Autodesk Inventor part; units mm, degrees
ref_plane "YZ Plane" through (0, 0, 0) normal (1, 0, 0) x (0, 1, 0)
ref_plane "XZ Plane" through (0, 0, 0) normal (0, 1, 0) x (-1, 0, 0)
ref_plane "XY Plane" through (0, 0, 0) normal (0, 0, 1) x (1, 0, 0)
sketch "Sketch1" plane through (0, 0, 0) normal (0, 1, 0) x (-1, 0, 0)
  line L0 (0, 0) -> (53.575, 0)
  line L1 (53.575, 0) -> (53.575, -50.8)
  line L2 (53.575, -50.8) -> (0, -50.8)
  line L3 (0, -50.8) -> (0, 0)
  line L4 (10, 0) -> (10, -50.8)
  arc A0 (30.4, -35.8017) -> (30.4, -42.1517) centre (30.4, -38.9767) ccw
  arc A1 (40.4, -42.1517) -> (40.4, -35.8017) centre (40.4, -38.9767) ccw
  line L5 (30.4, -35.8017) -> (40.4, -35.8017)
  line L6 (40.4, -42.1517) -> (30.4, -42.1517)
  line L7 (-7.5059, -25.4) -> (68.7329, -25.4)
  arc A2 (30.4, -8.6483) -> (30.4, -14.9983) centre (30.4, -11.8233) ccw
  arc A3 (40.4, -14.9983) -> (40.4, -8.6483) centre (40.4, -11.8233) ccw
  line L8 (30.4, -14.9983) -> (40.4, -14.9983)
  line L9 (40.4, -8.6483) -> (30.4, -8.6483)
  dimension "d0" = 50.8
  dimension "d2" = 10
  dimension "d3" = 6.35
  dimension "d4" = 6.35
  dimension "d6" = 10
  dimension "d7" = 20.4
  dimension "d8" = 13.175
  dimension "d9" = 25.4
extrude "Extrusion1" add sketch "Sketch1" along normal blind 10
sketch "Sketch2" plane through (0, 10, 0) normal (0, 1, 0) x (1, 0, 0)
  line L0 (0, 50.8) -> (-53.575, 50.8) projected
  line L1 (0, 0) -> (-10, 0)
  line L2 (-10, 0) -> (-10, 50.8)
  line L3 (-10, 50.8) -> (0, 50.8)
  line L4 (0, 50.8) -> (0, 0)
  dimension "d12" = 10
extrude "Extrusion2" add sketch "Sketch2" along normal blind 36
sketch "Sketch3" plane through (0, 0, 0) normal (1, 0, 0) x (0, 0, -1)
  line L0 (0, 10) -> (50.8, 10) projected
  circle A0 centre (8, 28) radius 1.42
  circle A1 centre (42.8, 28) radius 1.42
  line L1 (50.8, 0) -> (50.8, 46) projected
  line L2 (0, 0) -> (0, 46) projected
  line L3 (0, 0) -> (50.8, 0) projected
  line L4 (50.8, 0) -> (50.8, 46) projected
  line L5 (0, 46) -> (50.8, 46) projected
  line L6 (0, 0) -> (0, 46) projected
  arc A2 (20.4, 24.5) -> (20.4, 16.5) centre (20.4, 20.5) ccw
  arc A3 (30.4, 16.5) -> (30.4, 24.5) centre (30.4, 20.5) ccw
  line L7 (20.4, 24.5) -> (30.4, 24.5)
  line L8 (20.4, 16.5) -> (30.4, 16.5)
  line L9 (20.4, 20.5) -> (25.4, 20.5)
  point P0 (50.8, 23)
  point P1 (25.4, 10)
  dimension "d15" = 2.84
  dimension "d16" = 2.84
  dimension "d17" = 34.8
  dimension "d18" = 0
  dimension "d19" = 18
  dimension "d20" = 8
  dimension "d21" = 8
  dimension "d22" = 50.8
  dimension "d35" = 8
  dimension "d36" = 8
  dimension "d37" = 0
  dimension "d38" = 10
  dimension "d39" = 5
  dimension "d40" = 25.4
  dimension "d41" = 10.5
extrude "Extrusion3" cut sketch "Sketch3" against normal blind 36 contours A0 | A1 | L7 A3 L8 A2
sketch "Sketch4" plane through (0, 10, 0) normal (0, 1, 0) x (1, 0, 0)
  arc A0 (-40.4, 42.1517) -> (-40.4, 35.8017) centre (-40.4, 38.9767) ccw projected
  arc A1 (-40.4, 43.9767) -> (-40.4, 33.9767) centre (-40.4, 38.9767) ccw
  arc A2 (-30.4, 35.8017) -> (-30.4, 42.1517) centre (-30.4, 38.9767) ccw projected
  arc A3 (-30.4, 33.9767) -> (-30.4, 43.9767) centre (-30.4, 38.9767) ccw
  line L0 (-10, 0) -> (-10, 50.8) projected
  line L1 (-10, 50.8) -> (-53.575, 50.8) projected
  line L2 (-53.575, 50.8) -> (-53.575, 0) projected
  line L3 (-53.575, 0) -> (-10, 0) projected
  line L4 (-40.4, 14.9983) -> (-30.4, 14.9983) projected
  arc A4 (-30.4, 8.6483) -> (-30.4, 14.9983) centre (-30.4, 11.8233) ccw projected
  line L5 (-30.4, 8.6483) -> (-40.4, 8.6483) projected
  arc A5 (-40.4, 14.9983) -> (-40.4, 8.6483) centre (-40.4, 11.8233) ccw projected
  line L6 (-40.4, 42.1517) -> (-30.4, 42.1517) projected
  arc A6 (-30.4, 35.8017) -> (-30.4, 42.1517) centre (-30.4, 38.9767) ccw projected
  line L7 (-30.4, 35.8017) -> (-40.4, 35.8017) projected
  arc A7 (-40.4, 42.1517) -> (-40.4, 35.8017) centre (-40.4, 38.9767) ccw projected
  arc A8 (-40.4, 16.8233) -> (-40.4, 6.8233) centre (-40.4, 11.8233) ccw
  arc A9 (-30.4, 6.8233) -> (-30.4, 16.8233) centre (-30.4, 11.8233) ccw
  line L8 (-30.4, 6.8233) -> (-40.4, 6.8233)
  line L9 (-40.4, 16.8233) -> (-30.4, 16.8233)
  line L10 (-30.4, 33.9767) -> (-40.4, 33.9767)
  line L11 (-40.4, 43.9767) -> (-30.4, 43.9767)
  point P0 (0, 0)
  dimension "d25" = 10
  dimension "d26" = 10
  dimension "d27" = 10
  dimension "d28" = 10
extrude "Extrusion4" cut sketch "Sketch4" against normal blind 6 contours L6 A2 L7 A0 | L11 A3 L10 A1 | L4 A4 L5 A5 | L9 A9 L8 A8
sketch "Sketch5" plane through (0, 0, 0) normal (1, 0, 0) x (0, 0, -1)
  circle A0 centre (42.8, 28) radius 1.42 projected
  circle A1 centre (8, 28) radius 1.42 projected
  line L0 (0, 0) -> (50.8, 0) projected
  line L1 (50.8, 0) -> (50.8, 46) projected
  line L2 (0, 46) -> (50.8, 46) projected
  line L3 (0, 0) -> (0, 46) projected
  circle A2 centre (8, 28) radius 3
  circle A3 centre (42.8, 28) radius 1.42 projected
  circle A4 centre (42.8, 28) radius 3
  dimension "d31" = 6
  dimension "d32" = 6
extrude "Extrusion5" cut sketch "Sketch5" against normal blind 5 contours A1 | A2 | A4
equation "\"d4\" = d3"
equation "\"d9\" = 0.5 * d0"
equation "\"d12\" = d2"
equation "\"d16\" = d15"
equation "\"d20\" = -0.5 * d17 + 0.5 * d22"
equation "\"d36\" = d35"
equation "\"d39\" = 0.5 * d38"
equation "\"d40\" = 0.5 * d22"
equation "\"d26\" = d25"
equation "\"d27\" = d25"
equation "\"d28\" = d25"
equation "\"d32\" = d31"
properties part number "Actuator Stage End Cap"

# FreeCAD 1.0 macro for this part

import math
import FreeCAD as App
import Part
import Sketcher
from FreeCAD import Vector

doc = App.newDocument("Part")
params = doc.addObject("Spreadsheet::Sheet", "Params")
for row, (alias, value) in enumerate([
    ("sketch1_width", "10 mm"),
    ("sketch1_height", "50.8 mm"),
    ("pad1_length", "10 mm"),
    ("sketch2_width", "10 mm"),
    ("sketch2_height", "50.8 mm"),
    ("pad2_length", "36 mm"),
    ("sketch3_radius", "4 mm"),
    ("sketch3_diameter", "2.84 mm"),
    ("sketch3_height", "10 mm"),
    ("pocket1_length", "36 mm"),
    ("sketch4_radius", "5 mm"),
    ("sketch4_width", "10 mm"),
    ("pocket2_length", "6 mm"),
    ("sketch5_diameter", "6 mm"),
    ("sketch5_diameter2", "2.84 mm"),
    ("pocket3_length", "5 mm"),
], start=1):
    params.set(f"A{row}", alias)
    params.set(f"B{row}", "=" + value)
    params.setAlias(f"B{row}", alias)

body = doc.addObject("PartDesign::Body", "Body")

# Sketch on XZ plane
sketch1 = body.newObject("Sketcher::SketchObject", "Sketch")
sketch1.AttachmentSupport = (doc.getObject("XZ_Plane"), [""])
sketch1.MapMode = "FlatFace"
sketch1.addGeometry(Part.LineSegment(Vector(0, 0, 0), Vector(0, -50.8, 0)), False)
sketch1.addGeometry(Part.LineSegment(Vector(0, -50.8, 0), Vector(-53.6, -50.8, 0)), False)
sketch1.addGeometry(Part.LineSegment(Vector(-53.6, -50.8, 0), Vector(-53.6, 0, 0)), False)
sketch1.addGeometry(Part.LineSegment(Vector(-53.6, 0, 0), Vector(0, 0, 0)), False)
sketch1.addGeometry(Part.LineSegment(Vector(-30.4, -8.6, 0), Vector(-40.4, -8.6, 0)), False)
sketch1.addGeometry(Part.ArcOfCircle(Part.Circle(Vector(-40.4, -11.8, 0), Vector(0, 0, 1), 3.2), math.radians(90), math.radians(270)), False)
sketch1.addGeometry(Part.LineSegment(Vector(-40.4, -15, 0), Vector(-30.4, -15, 0)), False)
sketch1.addGeometry(Part.ArcOfCircle(Part.Circle(Vector(-30.4, -11.8, 0), Vector(0, 0, 1), 3.2), math.radians(-90), math.radians(90)), False)
sketch1.addGeometry(Part.LineSegment(Vector(-30.4, -35.8, 0), Vector(-40.4, -35.8, 0)), False)
sketch1.addGeometry(Part.ArcOfCircle(Part.Circle(Vector(-40.4, -39, 0), Vector(0, 0, 1), 3.2), math.radians(90), math.radians(270)), False)
sketch1.addGeometry(Part.LineSegment(Vector(-40.4, -42.2, 0), Vector(-30.4, -42.2, 0)), False)
sketch1.addGeometry(Part.ArcOfCircle(Part.Circle(Vector(-30.4, -39, 0), Vector(0, 0, 1), 3.2), math.radians(-90), math.radians(90)), False)
sketch1.addConstraint(Sketcher.Constraint("Coincident", 0, 2, 1, 1))
sketch1.addConstraint(Sketcher.Constraint("Coincident", 1, 2, 2, 1))
sketch1.addConstraint(Sketcher.Constraint("Coincident", 2, 2, 3, 1))
sketch1.addConstraint(Sketcher.Constraint("Coincident", 3, 2, 0, 1))
sketch1.addConstraint(Sketcher.Constraint("Tangent", 4, 2, 5, 1))
sketch1.addConstraint(Sketcher.Constraint("Tangent", 5, 2, 6, 1))
sketch1.addConstraint(Sketcher.Constraint("Tangent", 6, 2, 7, 1))
sketch1.addConstraint(Sketcher.Constraint("Tangent", 7, 2, 4, 1))
sketch1.addConstraint(Sketcher.Constraint("Tangent", 8, 2, 9, 1))
sketch1.addConstraint(Sketcher.Constraint("Tangent", 9, 2, 10, 1))
sketch1.addConstraint(Sketcher.Constraint("Tangent", 10, 2, 11, 1))
sketch1.addConstraint(Sketcher.Constraint("Tangent", 11, 2, 8, 1))
sketch1.addConstraint(Sketcher.Constraint("Vertical", 0))
sketch1.addConstraint(Sketcher.Constraint("Horizontal", 1))
sketch1.addConstraint(Sketcher.Constraint("Vertical", 2))
sketch1.addConstraint(Sketcher.Constraint("Horizontal", 3))
sketch1.addConstraint(Sketcher.Constraint("Horizontal", 4))
sketch1.addConstraint(Sketcher.Constraint("Horizontal", 6))
sketch1.addConstraint(Sketcher.Constraint("Horizontal", 8))
sketch1.addConstraint(Sketcher.Constraint("Horizontal", 10))
sketch1.addConstraint(Sketcher.Constraint("Coincident", 3, 2, -1, 1))
sketch1.addConstraint(Sketcher.Constraint("Equal", 7, 9))
sketch1.addConstraint(Sketcher.Constraint("Vertical", 5, 3, 9, 3))
sketch1.addConstraint(Sketcher.Constraint("Vertical", 7, 3, 11, 3))
sketch1.addConstraint(Sketcher.Constraint("DistanceX", 4, 2, 4, 1, 10.0))
sketch1.addConstraint(Sketcher.Constraint("DistanceY", 0, 2, 0, 1, 50.8))
sketch1.addConstraint(Sketcher.Constraint("Radius", 5, 3.175))
sketch1.addConstraint(Sketcher.Constraint("DistanceX", 1, 2, 9, 3, 13.175))
sketch1.addConstraint(Sketcher.Constraint("DistanceX", 5, 3, -1, 1, 40.4))
sketch1.addConstraint(Sketcher.Constraint("DistanceY", 5, 3, -1, 1, 11.8233))
sketch1.addConstraint(Sketcher.Constraint("DistanceY", 9, 3, -1, 1, 38.9767))
sketch1.setExpression("Constraints[24]", "Params.sketch1_width")
sketch1.setExpression("Constraints[25]", "Params.sketch1_height")
pad1 = body.newObject("PartDesign::Pad", "Pad")
pad1.Profile = sketch1
pad1.setExpression("Length", "Params.pad1_length")
pad1.Reversed = True

# Sketch on XZ plane
sketch2 = body.newObject("Sketcher::SketchObject", "Sketch001")
sketch2.AttachmentSupport = (doc.getObject("XZ_Plane"), [""])
sketch2.MapMode = "FlatFace"
sketch2.AttachmentOffset = App.Placement(Vector(0, 0, -10), App.Rotation())
sketch2.addGeometry(Part.LineSegment(Vector(0, 0, 0), Vector(0, -51, 0)), False)
sketch2.addGeometry(Part.LineSegment(Vector(0, -51, 0), Vector(-10, -51, 0)), False)
sketch2.addGeometry(Part.LineSegment(Vector(-10, -51, 0), Vector(-10, 0, 0)), False)
sketch2.addGeometry(Part.LineSegment(Vector(-10, 0, 0), Vector(0, 0, 0)), False)
sketch2.addConstraint(Sketcher.Constraint("Coincident", 0, 2, 1, 1))
sketch2.addConstraint(Sketcher.Constraint("Coincident", 1, 2, 2, 1))
sketch2.addConstraint(Sketcher.Constraint("Coincident", 2, 2, 3, 1))
sketch2.addConstraint(Sketcher.Constraint("Coincident", 3, 2, 0, 1))
sketch2.addConstraint(Sketcher.Constraint("Vertical", 0))
sketch2.addConstraint(Sketcher.Constraint("Horizontal", 1))
sketch2.addConstraint(Sketcher.Constraint("Vertical", 2))
sketch2.addConstraint(Sketcher.Constraint("Horizontal", 3))
sketch2.addConstraint(Sketcher.Constraint("Coincident", 3, 2, -1, 1))
sketch2.addConstraint(Sketcher.Constraint("DistanceX", 1, 2, 1, 1, 10.0))
sketch2.addConstraint(Sketcher.Constraint("DistanceY", 0, 2, 0, 1, 50.8))
sketch2.setExpression("Constraints[9]", "Params.sketch2_width")
sketch2.setExpression("Constraints[10]", "Params.sketch2_height")
pad2 = body.newObject("PartDesign::Pad", "Pad001")
pad2.Profile = sketch2
pad2.setExpression("Length", "Params.pad2_length")
pad2.Reversed = True

# Sketch on YZ plane
sketch3 = body.newObject("Sketcher::SketchObject", "Sketch002")
sketch3.AttachmentSupport = (doc.getObject("YZ_Plane"), [""])
sketch3.MapMode = "FlatFace"
sketch3.addGeometry(Part.Circle(Vector(28, -8, 0), Vector(0, 0, 1), 1.4), False)
sketch3.addGeometry(Part.Circle(Vector(28, -42.8, 0), Vector(0, 0, 1), 1.4), False)
sketch3.addGeometry(Part.LineSegment(Vector(24.5, -30.4, 0), Vector(24.5, -20.4, 0)), False)
sketch3.addGeometry(Part.ArcOfCircle(Part.Circle(Vector(20.5, -20.4, 0), Vector(0, 0, 1), 4), math.radians(0), math.radians(180)), False)
sketch3.addGeometry(Part.LineSegment(Vector(16.5, -20.4, 0), Vector(16.5, -30.4, 0)), False)
sketch3.addGeometry(Part.ArcOfCircle(Part.Circle(Vector(20.5, -30.4, 0), Vector(0, 0, 1), 4), math.radians(180), math.radians(360)), False)
sketch3.addConstraint(Sketcher.Constraint("Tangent", 2, 2, 3, 1))
sketch3.addConstraint(Sketcher.Constraint("Tangent", 3, 2, 4, 1))
sketch3.addConstraint(Sketcher.Constraint("Tangent", 4, 2, 5, 1))
sketch3.addConstraint(Sketcher.Constraint("Tangent", 5, 2, 2, 1))
sketch3.addConstraint(Sketcher.Constraint("Vertical", 2))
sketch3.addConstraint(Sketcher.Constraint("Vertical", 4))
sketch3.addConstraint(Sketcher.Constraint("Equal", 0, 1))
sketch3.addConstraint(Sketcher.Constraint("Vertical", 0, 3, 1, 3))
sketch3.addConstraint(Sketcher.Constraint("Radius", 3, 4.0))
sketch3.addConstraint(Sketcher.Constraint("Diameter", 0, 2.84))
sketch3.addConstraint(Sketcher.Constraint("DistanceY", 2, 1, 2, 2, 10.0))
sketch3.addConstraint(Sketcher.Constraint("DistanceY", 0, 3, -1, 1, 8.0))
sketch3.addConstraint(Sketcher.Constraint("DistanceY", 1, 3, 0, 3, 34.8))
sketch3.addConstraint(Sketcher.Constraint("DistanceX", -1, 1, 0, 3, 28.0))
sketch3.addConstraint(Sketcher.Constraint("DistanceX", -1, 1, 3, 3, 20.5))
sketch3.addConstraint(Sketcher.Constraint("DistanceY", 3, 3, -1, 1, 20.4))
sketch3.setExpression("Constraints[8]", "Params.sketch3_radius")
sketch3.setExpression("Constraints[9]", "Params.sketch3_diameter")
sketch3.setExpression("Constraints[10]", "Params.sketch3_height")
pocket1 = body.newObject("PartDesign::Pocket", "Pocket")
pocket1.Profile = sketch3
pocket1.setExpression("Length", "Params.pocket1_length")

# Sketch on XZ plane
sketch4 = body.newObject("Sketcher::SketchObject", "Sketch003")
sketch4.AttachmentSupport = (doc.getObject("XZ_Plane"), [""])
sketch4.MapMode = "FlatFace"
sketch4.AttachmentOffset = App.Placement(Vector(0, 0, -10), App.Rotation())
sketch4.addGeometry(Part.LineSegment(Vector(-30, -44, 0), Vector(-40, -44, 0)), False)
sketch4.addGeometry(Part.ArcOfCircle(Part.Circle(Vector(-40, -39, 0), Vector(0, 0, 1), 5), math.radians(90), math.radians(270)), False)
sketch4.addGeometry(Part.LineSegment(Vector(-40, -34, 0), Vector(-30, -34, 0)), False)
sketch4.addGeometry(Part.ArcOfCircle(Part.Circle(Vector(-30, -39, 0), Vector(0, 0, 1), 5), math.radians(-90), math.radians(90)), False)
sketch4.addGeometry(Part.LineSegment(Vector(-30, -17, 0), Vector(-40, -17, 0)), False)
sketch4.addGeometry(Part.ArcOfCircle(Part.Circle(Vector(-40, -12, 0), Vector(0, 0, 1), 5), math.radians(90), math.radians(270)), False)
sketch4.addGeometry(Part.LineSegment(Vector(-40, -7, 0), Vector(-30, -7, 0)), False)
sketch4.addGeometry(Part.ArcOfCircle(Part.Circle(Vector(-30, -12, 0), Vector(0, 0, 1), 5), math.radians(-90), math.radians(90)), False)
sketch4.addConstraint(Sketcher.Constraint("Tangent", 0, 2, 1, 2))
sketch4.addConstraint(Sketcher.Constraint("Tangent", 1, 1, 2, 1))
sketch4.addConstraint(Sketcher.Constraint("Tangent", 2, 2, 3, 2))
sketch4.addConstraint(Sketcher.Constraint("Tangent", 3, 1, 0, 1))
sketch4.addConstraint(Sketcher.Constraint("Tangent", 4, 2, 5, 2))
sketch4.addConstraint(Sketcher.Constraint("Tangent", 5, 1, 6, 1))
sketch4.addConstraint(Sketcher.Constraint("Tangent", 6, 2, 7, 2))
sketch4.addConstraint(Sketcher.Constraint("Tangent", 7, 1, 4, 1))
sketch4.addConstraint(Sketcher.Constraint("Horizontal", 0))
sketch4.addConstraint(Sketcher.Constraint("Horizontal", 2))
sketch4.addConstraint(Sketcher.Constraint("Horizontal", 4))
sketch4.addConstraint(Sketcher.Constraint("Horizontal", 6))
sketch4.addConstraint(Sketcher.Constraint("Equal", 3, 5))
sketch4.addConstraint(Sketcher.Constraint("Vertical", 1, 3, 5, 3))
sketch4.addConstraint(Sketcher.Constraint("Vertical", 3, 3, 7, 3))
sketch4.addConstraint(Sketcher.Constraint("Radius", 1, 5.0))
sketch4.addConstraint(Sketcher.Constraint("DistanceX", 0, 2, 0, 1, 10.0))
sketch4.addConstraint(Sketcher.Constraint("DistanceX", 1, 3, -1, 1, 40.4))
sketch4.addConstraint(Sketcher.Constraint("DistanceY", 1, 3, -1, 1, 38.9767))
sketch4.addConstraint(Sketcher.Constraint("DistanceY", 5, 3, -1, 1, 11.8233))
sketch4.setExpression("Constraints[15]", "Params.sketch4_radius")
sketch4.setExpression("Constraints[16]", "Params.sketch4_width")
pocket2 = body.newObject("PartDesign::Pocket", "Pocket001")
pocket2.Profile = sketch4
pocket2.setExpression("Length", "Params.pocket2_length")
pocket2.Reversed = True

# Sketch on YZ plane
sketch5 = body.newObject("Sketcher::SketchObject", "Sketch004")
sketch5.AttachmentSupport = (doc.getObject("YZ_Plane"), [""])
sketch5.MapMode = "FlatFace"
sketch5.addGeometry(Part.Circle(Vector(28, -8, 0), Vector(0, 0, 1), 3), False)
sketch5.addGeometry(Part.Circle(Vector(28, -42.8, 0), Vector(0, 0, 1), 3), False)
sketch5.addGeometry(Part.Circle(Vector(28, -42.8, 0), Vector(0, 0, 1), 1.4), False)
sketch5.addConstraint(Sketcher.Constraint("Coincident", 2, 3, 1, 3))
sketch5.addConstraint(Sketcher.Constraint("Equal", 0, 1))
sketch5.addConstraint(Sketcher.Constraint("Vertical", 0, 3, 1, 3))
sketch5.addConstraint(Sketcher.Constraint("Diameter", 0, 6.0))
sketch5.addConstraint(Sketcher.Constraint("Diameter", 2, 2.84))
sketch5.addConstraint(Sketcher.Constraint("DistanceX", -1, 1, 0, 3, 28.0))
sketch5.addConstraint(Sketcher.Constraint("DistanceY", 0, 3, -1, 1, 8.0))
sketch5.addConstraint(Sketcher.Constraint("DistanceY", 1, 3, -1, 1, 42.8))
sketch5.setExpression("Constraints[3]", "Params.sketch5_diameter")
sketch5.setExpression("Constraints[4]", "Params.sketch5_diameter2")
pocket3 = body.newObject("PartDesign::Pocket", "Pocket002")
pocket3.Profile = sketch5
pocket3.setExpression("Length", "Params.pocket3_length")

doc.recompute()
